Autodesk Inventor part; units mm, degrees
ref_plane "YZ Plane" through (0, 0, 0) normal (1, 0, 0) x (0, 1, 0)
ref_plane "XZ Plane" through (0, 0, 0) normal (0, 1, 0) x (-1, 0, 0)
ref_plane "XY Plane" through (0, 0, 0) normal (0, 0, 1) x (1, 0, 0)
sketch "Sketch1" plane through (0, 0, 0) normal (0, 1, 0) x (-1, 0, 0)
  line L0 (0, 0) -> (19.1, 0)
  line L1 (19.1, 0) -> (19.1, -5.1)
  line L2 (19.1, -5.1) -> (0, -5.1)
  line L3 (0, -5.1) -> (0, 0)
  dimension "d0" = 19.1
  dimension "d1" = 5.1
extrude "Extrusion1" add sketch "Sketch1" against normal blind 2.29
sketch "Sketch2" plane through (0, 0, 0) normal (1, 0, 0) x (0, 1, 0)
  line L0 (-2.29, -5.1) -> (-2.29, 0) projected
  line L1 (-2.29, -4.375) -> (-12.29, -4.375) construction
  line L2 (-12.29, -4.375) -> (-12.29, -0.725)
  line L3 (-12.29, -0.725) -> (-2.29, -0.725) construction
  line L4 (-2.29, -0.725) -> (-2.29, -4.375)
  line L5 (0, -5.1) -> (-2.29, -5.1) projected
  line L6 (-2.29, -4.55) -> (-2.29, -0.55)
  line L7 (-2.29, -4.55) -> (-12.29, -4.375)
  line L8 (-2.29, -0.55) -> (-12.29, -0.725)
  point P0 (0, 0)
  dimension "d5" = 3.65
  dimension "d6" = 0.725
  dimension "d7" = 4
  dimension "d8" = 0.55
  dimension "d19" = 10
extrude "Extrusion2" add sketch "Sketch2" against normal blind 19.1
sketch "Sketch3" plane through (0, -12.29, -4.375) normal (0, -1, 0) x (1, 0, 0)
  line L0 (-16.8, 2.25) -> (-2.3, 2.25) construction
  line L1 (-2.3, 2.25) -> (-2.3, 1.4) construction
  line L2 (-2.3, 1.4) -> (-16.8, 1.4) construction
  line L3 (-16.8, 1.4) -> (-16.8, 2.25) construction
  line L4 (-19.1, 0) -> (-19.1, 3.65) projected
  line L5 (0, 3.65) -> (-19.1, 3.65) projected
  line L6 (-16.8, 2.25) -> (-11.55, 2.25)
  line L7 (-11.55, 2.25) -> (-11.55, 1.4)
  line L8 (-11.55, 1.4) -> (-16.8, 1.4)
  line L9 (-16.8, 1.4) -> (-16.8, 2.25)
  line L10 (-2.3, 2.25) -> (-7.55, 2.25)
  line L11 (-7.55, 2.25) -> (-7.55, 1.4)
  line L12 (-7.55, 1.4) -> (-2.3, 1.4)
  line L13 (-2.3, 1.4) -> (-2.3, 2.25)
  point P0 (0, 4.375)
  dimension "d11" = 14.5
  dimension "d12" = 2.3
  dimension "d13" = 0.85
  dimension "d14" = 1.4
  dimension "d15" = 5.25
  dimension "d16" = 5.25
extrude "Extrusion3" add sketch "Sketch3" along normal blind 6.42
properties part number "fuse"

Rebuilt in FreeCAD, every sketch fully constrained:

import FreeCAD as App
import Part
import Sketcher

V = App.Vector


def add_polygon(sketch, points):
    """Adds a closed chain of lines whose ends are joined by coincident constraints."""
    first, n = sketch.GeometryCount, len(points)
    for a, b in zip(points, points[1:] + points[:1]):
        sketch.addGeometry(Part.LineSegment(App.Vector(*a, 0), App.Vector(*b, 0)), False)
    for i in range(n):
        sketch.addConstraint(Sketcher.Constraint("Coincident", first + i, 2, first + (i + 1) % n, 1))

doc = App.newDocument("Part")
body = doc.addObject("PartDesign::Body", "Body")

# Sketch on XZ plane
sketch1 = doc.addObject("Sketcher::SketchObject", "Sketch")
body.addObject(sketch1)
sketch1.AttachmentSupport = (doc.XZ_Plane, [""])
sketch1.MapMode = "FlatFace"
add_polygon(sketch1, [(-19.1, 0), (0, 0), (0, -5.1), (-19.1, -5.1)])  # lines 0-3
sketch1.addConstraint(Sketcher.Constraint("Horizontal", 0))
sketch1.addConstraint(Sketcher.Constraint("Vertical", 1))
sketch1.addConstraint(Sketcher.Constraint("Horizontal", 2))
sketch1.addConstraint(Sketcher.Constraint("Vertical", 3))
sketch1.addConstraint(Sketcher.Constraint("Coincident", 0, 2, -1, 1))
sketch1.addConstraint(Sketcher.Constraint("DistanceX", 0, 1, 0, 2, 19.1))
sketch1.addConstraint(Sketcher.Constraint("DistanceY", 1, 2, 1, 1, 5.1))
pad1 = doc.addObject("PartDesign::Pad", "Pad")
body.addObject(pad1)
pad1.Profile = sketch1
pad1.Length = 2.29

# Sketch on YZ plane
sketch2 = doc.addObject("Sketcher::SketchObject", "Sketch001")
body.addObject(sketch2)
sketch2.AttachmentSupport = (doc.YZ_Plane, [""])
sketch2.MapMode = "FlatFace"
add_polygon(sketch2, [(-12.29, -4.375), (-2.29, -4.55), (-2.29, -0.55), (-12.29, -0.725)])  # lines 0-3
sketch2.addConstraint(Sketcher.Constraint("Vertical", 1))
sketch2.addConstraint(Sketcher.Constraint("Vertical", 3))
sketch2.addConstraint(Sketcher.Constraint("Equal", 0, 2))
sketch2.addConstraint(Sketcher.Constraint("DistanceY", 1, 1, 1, 2, 4.0))
sketch2.addConstraint(Sketcher.Constraint("DistanceX", 2, 2, 1, 2, 10.0))
sketch2.addConstraint(Sketcher.Constraint("DistanceY", 3, 2, 3, 1, 3.65))
sketch2.addConstraint(Sketcher.Constraint("DistanceY", 1, 2, -1, 1, 0.55))
sketch2.addConstraint(Sketcher.Constraint("DistanceX", 0, 2, -1, 1, 2.29))
pad2 = doc.addObject("PartDesign::Pad", "Pad001")
body.addObject(pad2)
pad2.Profile = sketch2
pad2.Length = 19.1
pad2.Reversed = True

# Sketch on XZ plane
sketch3 = doc.addObject("Sketcher::SketchObject", "Sketch002")
body.addObject(sketch3)
sketch3.AttachmentSupport = (doc.XZ_Plane, [""])
sketch3.MapMode = "FlatFace"
sketch3.AttachmentOffset = App.Placement(V(0, 0, 12.29), App.Rotation())
add_polygon(sketch3, [(-11.55, -2.125), (-16.8, -2.125), (-16.8, -2.975), (-11.55, -2.975)])  # lines 0-3
add_polygon(sketch3, [(-2.3, -2.975), (-2.3, -2.125), (-7.55, -2.125), (-7.55, -2.975)])  # lines 4-7
sketch3.addConstraint(Sketcher.Constraint("Horizontal", 0))
sketch3.addConstraint(Sketcher.Constraint("Vertical", 1))
sketch3.addConstraint(Sketcher.Constraint("Horizontal", 2))
sketch3.addConstraint(Sketcher.Constraint("Vertical", 3))
sketch3.addConstraint(Sketcher.Constraint("Vertical", 4))
sketch3.addConstraint(Sketcher.Constraint("Horizontal", 5))
sketch3.addConstraint(Sketcher.Constraint("Vertical", 6))
sketch3.addConstraint(Sketcher.Constraint("Horizontal", 7))
sketch3.addConstraint(Sketcher.Constraint("Horizontal", 3, 2, 4, 2))
sketch3.addConstraint(Sketcher.Constraint("Horizontal", 2, 2, 6, 2))
sketch3.addConstraint(Sketcher.Constraint("Equal", 2, 5))
sketch3.addConstraint(Sketcher.Constraint("DistanceX", 0, 2, 0, 1, 5.25))
sketch3.addConstraint(Sketcher.Constraint("DistanceY", 1, 2, 1, 1, 0.85))
sketch3.addConstraint(Sketcher.Constraint("DistanceX", 4, 2, -1, 1, 2.3))
sketch3.addConstraint(Sketcher.Constraint("DistanceX", 0, 2, 4, 2, 14.5))
sketch3.addConstraint(Sketcher.Constraint("DistanceY", 0, 2, -1, 1, 2.125))
pad3 = doc.addObject("PartDesign::Pad", "Pad002")
body.addObject(pad3)
pad3.Profile = sketch3
pad3.Length = 6.42

doc.recompute()
